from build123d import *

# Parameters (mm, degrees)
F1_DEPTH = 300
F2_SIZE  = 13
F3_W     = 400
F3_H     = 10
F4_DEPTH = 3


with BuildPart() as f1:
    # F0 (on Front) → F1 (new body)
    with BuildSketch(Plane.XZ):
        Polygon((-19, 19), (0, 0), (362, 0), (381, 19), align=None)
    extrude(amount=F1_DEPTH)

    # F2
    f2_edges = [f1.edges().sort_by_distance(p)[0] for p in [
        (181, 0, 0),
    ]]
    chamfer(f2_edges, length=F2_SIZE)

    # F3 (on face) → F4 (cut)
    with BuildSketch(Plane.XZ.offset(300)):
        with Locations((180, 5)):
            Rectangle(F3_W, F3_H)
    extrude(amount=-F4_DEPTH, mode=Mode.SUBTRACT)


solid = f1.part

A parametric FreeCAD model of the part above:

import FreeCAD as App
import Part
import Sketcher

V = App.Vector
Q = App.Units.Quantity


def edges_at(feature, points):
    """Names of the edges that pass closest to the given points."""
    edges = feature.Shape.Edges
    near = lambda p: min(range(len(edges)), key=lambda i: edges[i].distToShape(Part.Vertex(*p))[0])
    return sorted({f"Edge{near(p) + 1}" for p in points})


def add_polygon(sketch, points):
    """Adds a closed chain of lines whose ends are joined by coincident constraints."""
    first, n = sketch.GeometryCount, len(points)
    for a, b in zip(points, points[1:] + points[:1]):
        sketch.addGeometry(Part.LineSegment(App.Vector(*a, 0), App.Vector(*b, 0)), False)
    for i in range(n):
        sketch.addConstraint(Sketcher.Constraint("Coincident", first + i, 2, first + (i + 1) % n, 1))

doc = App.newDocument("Part")
body = doc.addObject("PartDesign::Body", "Body")

sketch1 = doc.addObject("Sketcher::SketchObject", "Sketch")
body.addObject(sketch1)
sketch1.AttachmentSupport = (doc.XZ_Plane, [""])
sketch1.MapMode = "FlatFace"
add_polygon(sketch1, [(-19, 19), (0, 0), (362, 0), (381, 19)])
sketch1.addConstraint(Sketcher.Constraint("Horizontal", 1))
sketch1.addConstraint(Sketcher.Constraint("Horizontal", 3))
sketch1.addConstraint(Sketcher.Constraint("Coincident", 0, 2, -1, 1))
sketch1.addConstraint(Sketcher.Constraint("Perpendicular", 0, 2))
sketch1.addConstraint(Sketcher.Constraint("Equal", 0, 2))
sketch1.addConstraint(Sketcher.Constraint("DistanceX", 1, 1, 1, 2, Q("362 mm")))
sketch1.addConstraint(Sketcher.Constraint("DistanceX", 3, 2, 3, 1, Q("400 mm")))
pad1 = doc.addObject("PartDesign::Pad", "Pad")
body.addObject(pad1)
pad1.Profile = sketch1
pad1.Length = 300
doc.recompute()

chamfer = doc.addObject("PartDesign::Chamfer", "Chamfer")
body.addObject(chamfer)
chamfer.Base = (pad1, edges_at(pad1, [(181, 0, 0)]))
chamfer.Size = 13

sketch2 = doc.addObject("Sketcher::SketchObject", "Sketch001")
body.addObject(sketch2)
sketch2.AttachmentSupport = (doc.XZ_Plane, [""])
sketch2.MapMode = "FlatFace"
sketch2.AttachmentOffset = App.Placement(V(0, 0, 300), App.Rotation())
add_polygon(sketch2, [(-20, 10), (-20, 0), (380, 0), (380, 10)])
sketch2.addConstraint(Sketcher.Constraint("Vertical", 0))
sketch2.addConstraint(Sketcher.Constraint("Horizontal", 1))
sketch2.addConstraint(Sketcher.Constraint("Vertical", 2))
sketch2.addConstraint(Sketcher.Constraint("Horizontal", 3))
sketch2.addConstraint(Sketcher.Constraint("PointOnObject", 0, 2, -1))
sketch2.addConstraint(Sketcher.Constraint("DistanceX", 1, 1, 1, 2, Q("400 mm")))
sketch2.addConstraint(Sketcher.Constraint("DistanceY", 0, 2, 0, 1, Q("10 mm")))
sketch2.addConstraint(Sketcher.Constraint("DistanceX", 0, 2, -1, 1, Q("20 mm")))
pocket1 = doc.addObject("PartDesign::Pocket", "Pocket")
body.addObject(pocket1)
pocket1.Profile = sketch2
pocket1.Length = 3

doc.recompute()
